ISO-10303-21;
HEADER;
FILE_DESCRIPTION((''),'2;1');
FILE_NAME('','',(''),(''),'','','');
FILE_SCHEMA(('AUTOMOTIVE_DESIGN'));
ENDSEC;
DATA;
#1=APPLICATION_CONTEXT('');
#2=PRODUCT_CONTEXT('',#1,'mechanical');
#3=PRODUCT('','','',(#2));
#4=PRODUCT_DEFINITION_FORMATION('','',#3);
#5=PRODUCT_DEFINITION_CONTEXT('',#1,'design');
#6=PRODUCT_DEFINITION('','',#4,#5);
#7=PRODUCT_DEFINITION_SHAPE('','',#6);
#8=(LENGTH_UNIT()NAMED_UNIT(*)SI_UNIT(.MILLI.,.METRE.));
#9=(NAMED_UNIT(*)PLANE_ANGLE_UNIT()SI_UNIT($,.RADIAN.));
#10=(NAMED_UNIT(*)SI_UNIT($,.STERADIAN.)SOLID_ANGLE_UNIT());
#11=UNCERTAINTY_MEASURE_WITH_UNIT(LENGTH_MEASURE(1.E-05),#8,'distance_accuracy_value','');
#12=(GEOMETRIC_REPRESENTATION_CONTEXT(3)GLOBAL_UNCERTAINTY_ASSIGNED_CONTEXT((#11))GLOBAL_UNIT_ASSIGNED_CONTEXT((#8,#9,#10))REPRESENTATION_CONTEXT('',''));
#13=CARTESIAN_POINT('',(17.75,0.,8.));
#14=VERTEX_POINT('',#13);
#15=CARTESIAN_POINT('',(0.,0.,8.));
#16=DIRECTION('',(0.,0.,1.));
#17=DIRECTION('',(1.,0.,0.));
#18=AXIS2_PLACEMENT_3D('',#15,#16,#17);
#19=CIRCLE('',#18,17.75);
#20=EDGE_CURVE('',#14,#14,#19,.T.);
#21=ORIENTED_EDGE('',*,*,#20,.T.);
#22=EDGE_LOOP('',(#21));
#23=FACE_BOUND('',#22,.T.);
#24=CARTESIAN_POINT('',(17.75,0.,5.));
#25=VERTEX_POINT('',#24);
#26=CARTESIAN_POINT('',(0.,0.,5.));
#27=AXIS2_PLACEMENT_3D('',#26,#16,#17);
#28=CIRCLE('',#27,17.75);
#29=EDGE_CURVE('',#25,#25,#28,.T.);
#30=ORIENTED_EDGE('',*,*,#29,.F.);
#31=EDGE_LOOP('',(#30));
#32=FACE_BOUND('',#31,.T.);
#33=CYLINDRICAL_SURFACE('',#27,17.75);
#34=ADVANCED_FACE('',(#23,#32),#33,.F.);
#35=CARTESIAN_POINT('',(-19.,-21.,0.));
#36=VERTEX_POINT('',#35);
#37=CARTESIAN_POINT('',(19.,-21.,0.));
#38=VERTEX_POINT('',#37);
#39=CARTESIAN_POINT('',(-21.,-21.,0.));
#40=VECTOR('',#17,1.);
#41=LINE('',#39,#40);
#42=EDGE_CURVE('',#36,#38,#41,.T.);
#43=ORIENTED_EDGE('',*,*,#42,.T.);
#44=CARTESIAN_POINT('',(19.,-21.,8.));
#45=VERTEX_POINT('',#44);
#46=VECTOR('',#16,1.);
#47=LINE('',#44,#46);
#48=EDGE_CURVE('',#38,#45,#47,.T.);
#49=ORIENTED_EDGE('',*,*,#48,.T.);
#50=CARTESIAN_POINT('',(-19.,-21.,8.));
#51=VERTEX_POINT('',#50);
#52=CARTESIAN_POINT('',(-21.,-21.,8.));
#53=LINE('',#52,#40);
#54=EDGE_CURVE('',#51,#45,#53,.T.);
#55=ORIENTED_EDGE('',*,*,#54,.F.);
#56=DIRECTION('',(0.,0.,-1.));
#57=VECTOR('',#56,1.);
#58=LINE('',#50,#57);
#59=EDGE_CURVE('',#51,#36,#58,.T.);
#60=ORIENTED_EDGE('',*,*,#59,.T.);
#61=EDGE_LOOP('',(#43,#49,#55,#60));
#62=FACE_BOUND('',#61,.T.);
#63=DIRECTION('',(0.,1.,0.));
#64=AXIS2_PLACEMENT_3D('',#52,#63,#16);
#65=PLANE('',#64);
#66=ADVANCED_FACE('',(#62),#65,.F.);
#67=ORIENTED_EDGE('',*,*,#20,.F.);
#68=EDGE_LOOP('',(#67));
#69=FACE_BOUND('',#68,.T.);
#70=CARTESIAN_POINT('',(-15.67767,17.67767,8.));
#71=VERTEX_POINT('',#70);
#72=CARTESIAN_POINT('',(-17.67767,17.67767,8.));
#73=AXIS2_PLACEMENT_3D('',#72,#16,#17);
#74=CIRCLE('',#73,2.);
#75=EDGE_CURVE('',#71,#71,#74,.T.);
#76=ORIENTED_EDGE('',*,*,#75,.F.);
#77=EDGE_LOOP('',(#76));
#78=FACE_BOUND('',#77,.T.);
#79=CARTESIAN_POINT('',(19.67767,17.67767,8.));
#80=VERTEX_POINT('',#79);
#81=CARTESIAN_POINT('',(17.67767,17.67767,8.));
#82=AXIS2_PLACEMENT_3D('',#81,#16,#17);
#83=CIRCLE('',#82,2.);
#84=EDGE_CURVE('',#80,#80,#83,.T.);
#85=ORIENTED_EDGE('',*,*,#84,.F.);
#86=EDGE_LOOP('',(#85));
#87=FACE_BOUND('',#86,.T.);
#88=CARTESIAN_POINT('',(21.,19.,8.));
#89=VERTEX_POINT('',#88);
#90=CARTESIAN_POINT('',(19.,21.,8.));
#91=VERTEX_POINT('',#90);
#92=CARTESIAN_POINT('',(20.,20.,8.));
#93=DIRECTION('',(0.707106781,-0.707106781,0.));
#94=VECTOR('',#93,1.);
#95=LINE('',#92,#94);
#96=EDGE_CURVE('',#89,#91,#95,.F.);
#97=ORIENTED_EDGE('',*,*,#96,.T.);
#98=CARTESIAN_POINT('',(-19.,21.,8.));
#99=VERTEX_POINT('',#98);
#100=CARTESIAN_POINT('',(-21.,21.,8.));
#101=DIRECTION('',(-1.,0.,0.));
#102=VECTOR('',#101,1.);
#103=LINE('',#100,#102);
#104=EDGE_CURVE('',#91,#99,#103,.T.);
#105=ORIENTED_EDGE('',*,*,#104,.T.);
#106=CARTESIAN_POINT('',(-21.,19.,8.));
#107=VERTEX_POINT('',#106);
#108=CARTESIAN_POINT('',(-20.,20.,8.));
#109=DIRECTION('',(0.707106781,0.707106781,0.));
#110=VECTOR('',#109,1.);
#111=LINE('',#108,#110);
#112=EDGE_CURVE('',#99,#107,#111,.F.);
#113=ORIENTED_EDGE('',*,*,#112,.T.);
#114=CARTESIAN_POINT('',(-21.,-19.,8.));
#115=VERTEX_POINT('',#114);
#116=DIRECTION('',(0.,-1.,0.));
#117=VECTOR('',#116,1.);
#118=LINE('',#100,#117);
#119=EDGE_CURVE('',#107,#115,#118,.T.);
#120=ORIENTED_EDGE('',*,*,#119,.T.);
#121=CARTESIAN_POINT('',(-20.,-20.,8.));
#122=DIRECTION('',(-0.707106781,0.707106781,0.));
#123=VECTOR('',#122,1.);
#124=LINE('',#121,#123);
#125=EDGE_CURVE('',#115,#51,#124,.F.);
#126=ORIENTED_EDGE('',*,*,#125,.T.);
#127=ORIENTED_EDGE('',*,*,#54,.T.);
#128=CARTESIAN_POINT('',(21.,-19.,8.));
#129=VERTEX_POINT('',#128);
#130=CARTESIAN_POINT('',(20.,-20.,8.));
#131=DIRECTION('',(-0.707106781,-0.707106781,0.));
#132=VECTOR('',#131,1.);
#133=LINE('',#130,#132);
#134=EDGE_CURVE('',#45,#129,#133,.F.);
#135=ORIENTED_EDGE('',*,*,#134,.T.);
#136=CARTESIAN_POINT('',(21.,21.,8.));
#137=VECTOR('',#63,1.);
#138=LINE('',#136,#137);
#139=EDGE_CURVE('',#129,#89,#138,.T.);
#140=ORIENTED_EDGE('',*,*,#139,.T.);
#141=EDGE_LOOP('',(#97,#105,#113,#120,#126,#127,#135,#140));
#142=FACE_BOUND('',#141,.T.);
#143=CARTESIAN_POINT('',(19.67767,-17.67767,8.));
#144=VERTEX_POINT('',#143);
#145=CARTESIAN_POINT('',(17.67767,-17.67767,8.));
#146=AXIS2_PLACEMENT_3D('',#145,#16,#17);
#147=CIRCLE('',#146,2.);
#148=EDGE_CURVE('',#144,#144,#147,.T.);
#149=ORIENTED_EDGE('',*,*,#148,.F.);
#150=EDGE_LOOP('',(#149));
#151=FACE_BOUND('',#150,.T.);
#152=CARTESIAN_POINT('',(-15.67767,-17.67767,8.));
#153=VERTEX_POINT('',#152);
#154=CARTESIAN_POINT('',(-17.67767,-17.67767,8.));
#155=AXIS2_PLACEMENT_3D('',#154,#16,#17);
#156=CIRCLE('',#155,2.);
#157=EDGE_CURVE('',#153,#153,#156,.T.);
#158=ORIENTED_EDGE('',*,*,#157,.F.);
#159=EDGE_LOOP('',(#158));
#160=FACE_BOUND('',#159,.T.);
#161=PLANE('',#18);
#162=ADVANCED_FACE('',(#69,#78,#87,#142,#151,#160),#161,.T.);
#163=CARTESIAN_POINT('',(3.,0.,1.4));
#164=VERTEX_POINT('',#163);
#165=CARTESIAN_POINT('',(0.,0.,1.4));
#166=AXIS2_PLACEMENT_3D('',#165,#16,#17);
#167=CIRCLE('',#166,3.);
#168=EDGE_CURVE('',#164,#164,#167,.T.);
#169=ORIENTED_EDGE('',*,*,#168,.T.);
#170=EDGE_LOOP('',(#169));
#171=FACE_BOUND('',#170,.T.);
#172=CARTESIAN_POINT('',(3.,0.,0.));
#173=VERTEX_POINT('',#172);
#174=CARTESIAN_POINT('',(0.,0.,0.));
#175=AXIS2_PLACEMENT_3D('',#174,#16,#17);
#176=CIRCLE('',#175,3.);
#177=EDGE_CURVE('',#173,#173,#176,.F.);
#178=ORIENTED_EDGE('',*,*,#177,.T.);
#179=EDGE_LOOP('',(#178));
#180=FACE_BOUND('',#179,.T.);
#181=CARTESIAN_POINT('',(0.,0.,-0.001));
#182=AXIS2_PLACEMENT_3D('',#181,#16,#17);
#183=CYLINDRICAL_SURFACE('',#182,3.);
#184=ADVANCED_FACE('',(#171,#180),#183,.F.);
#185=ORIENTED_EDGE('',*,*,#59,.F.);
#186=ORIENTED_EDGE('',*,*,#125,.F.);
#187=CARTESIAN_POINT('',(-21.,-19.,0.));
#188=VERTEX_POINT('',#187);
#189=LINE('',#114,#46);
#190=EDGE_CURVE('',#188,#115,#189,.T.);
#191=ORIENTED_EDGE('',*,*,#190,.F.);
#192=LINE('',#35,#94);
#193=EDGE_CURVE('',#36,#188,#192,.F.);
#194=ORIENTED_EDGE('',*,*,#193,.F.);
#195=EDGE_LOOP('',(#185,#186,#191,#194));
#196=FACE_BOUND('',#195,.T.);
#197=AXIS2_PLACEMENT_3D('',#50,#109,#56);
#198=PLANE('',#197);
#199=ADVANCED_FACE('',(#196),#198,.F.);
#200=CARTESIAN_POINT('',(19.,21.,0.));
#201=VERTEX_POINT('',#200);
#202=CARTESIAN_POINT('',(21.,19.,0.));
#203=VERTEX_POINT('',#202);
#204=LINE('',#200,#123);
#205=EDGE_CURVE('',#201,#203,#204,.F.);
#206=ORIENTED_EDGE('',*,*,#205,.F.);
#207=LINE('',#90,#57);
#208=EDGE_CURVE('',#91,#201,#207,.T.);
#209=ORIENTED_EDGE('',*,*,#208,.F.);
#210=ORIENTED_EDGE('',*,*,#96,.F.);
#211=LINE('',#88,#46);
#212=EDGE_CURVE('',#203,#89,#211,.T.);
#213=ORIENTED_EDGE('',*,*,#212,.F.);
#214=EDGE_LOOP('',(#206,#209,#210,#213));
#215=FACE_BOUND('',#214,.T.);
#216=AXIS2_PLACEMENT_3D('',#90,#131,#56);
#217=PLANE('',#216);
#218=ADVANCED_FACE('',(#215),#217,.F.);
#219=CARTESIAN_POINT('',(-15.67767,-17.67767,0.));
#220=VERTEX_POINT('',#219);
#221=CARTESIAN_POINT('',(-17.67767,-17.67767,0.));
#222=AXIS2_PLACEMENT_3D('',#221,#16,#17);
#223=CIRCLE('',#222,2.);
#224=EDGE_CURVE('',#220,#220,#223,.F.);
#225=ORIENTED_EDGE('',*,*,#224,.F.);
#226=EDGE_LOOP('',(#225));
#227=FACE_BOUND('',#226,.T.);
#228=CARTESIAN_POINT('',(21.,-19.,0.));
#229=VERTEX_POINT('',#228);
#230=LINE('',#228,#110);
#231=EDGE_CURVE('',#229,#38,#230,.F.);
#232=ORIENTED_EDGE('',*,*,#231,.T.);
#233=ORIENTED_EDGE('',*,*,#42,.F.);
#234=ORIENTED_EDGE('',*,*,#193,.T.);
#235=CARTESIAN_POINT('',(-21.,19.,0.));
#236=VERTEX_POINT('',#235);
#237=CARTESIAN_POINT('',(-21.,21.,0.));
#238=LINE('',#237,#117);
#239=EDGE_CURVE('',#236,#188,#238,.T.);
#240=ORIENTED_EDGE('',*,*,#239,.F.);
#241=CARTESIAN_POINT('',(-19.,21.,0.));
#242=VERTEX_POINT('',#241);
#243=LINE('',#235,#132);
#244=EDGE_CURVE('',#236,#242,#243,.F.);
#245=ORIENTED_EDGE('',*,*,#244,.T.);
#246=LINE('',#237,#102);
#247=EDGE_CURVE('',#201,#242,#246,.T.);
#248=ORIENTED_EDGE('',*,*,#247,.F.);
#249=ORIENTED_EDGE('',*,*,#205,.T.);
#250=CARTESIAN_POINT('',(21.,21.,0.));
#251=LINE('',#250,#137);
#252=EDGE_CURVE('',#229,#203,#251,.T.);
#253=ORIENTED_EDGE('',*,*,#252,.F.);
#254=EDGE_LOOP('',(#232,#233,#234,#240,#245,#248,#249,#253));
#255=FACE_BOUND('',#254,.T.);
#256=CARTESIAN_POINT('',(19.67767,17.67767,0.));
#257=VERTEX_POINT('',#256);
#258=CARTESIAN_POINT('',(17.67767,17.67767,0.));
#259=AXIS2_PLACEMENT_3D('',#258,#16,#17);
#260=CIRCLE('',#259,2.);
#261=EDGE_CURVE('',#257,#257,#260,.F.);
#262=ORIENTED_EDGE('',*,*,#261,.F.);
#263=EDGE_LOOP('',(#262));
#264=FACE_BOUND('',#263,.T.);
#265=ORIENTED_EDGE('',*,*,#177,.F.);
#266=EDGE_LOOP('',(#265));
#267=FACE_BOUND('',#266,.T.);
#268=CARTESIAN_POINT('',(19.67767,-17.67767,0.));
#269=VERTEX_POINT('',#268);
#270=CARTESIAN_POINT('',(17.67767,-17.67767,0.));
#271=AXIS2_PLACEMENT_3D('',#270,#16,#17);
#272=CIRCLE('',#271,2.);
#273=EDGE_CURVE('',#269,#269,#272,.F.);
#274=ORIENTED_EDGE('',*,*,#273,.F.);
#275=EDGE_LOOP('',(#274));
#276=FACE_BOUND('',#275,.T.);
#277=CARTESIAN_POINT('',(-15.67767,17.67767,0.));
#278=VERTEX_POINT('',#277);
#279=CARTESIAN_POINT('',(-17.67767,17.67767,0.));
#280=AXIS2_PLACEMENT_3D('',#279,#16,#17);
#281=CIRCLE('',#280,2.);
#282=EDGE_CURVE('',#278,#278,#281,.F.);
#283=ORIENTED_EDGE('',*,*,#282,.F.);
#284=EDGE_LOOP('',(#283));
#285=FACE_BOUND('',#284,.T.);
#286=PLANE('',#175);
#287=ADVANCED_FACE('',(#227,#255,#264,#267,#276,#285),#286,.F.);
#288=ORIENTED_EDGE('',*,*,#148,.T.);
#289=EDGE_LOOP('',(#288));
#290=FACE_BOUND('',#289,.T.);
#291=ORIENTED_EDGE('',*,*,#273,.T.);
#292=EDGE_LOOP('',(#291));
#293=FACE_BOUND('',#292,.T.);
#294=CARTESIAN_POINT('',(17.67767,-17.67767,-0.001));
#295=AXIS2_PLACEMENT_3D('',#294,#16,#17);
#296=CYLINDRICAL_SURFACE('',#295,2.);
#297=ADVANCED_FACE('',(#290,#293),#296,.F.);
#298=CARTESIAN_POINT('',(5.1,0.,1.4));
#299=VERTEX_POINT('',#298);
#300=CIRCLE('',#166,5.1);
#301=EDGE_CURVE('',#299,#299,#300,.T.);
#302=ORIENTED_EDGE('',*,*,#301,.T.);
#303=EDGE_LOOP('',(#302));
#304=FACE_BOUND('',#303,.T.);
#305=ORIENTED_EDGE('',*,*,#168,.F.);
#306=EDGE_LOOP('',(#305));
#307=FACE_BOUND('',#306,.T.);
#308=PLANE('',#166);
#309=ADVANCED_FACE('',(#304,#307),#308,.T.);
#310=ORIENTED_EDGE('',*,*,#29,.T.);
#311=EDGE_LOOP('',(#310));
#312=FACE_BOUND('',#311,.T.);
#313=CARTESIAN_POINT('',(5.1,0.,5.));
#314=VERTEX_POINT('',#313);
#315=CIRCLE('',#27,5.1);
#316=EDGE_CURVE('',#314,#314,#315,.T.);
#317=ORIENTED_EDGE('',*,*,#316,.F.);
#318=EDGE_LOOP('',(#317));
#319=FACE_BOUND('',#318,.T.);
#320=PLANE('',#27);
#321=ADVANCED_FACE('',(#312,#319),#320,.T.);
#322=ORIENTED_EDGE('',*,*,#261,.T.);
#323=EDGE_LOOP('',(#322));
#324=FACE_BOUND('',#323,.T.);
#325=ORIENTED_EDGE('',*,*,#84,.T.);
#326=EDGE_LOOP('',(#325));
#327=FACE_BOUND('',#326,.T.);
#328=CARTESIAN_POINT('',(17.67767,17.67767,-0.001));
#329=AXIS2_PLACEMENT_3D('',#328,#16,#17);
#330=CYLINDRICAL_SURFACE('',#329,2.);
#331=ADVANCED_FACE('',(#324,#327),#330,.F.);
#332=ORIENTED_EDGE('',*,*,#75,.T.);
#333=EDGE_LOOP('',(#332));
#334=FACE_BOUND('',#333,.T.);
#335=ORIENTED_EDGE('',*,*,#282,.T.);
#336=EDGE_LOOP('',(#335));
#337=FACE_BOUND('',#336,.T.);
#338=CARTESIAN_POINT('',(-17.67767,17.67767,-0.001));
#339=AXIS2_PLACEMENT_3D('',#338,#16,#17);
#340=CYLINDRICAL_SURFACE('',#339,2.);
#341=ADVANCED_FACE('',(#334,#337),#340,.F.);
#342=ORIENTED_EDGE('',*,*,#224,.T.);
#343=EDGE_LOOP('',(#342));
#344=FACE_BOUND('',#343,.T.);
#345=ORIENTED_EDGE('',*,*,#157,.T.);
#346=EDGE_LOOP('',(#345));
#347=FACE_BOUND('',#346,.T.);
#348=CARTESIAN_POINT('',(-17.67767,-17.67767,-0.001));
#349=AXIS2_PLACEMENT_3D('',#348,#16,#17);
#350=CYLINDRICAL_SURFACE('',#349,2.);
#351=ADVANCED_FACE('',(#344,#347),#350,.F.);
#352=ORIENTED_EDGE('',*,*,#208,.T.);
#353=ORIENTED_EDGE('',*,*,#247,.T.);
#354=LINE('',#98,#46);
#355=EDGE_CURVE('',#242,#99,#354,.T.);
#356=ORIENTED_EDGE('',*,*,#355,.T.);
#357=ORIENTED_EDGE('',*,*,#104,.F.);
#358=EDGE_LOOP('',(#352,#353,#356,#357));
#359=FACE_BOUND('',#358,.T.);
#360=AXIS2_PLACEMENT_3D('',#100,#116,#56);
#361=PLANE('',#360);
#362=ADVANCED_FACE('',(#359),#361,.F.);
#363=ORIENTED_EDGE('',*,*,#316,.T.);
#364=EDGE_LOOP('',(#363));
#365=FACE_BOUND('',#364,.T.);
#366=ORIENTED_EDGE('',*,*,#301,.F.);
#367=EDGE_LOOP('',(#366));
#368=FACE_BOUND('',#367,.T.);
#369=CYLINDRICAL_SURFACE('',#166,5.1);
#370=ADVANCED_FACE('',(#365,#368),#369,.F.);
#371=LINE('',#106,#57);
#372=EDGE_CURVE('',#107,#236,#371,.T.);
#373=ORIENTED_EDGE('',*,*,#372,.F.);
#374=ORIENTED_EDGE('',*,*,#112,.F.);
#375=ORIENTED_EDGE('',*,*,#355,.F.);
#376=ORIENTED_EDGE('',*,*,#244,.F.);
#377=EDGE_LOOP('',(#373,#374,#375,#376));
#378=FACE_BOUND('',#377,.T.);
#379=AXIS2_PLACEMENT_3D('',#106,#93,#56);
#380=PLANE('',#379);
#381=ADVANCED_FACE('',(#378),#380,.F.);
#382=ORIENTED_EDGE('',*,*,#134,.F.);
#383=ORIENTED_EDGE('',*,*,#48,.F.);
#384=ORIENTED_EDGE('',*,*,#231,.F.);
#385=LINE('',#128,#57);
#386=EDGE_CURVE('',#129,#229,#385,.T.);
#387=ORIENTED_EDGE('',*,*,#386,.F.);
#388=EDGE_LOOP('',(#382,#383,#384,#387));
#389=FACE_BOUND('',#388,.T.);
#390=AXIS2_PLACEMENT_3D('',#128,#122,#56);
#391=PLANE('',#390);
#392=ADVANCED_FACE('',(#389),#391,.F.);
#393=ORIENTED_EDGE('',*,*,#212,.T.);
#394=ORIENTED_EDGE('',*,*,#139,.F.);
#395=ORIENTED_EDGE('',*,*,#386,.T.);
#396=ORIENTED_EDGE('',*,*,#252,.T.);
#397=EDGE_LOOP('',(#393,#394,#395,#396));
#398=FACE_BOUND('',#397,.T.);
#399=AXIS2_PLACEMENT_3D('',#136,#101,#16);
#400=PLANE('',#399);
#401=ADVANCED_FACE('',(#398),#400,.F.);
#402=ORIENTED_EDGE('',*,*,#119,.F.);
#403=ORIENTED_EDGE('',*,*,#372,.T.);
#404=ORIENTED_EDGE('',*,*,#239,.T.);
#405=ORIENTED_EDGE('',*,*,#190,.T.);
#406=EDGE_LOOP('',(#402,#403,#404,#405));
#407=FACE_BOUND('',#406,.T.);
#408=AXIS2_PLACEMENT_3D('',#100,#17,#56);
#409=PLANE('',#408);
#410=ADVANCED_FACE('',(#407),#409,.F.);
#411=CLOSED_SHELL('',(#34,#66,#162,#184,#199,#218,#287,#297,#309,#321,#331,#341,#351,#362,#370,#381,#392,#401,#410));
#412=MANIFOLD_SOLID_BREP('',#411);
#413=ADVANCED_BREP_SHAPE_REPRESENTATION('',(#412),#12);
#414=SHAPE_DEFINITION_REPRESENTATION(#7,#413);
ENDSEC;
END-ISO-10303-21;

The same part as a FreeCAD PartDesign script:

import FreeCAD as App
import Part
import Sketcher
Q = App.Units.Quantity


def edges_at(feature, points):
    """Names of the edges that pass closest to the given points."""
    edges = feature.Shape.Edges
    near = lambda p: min(range(len(edges)), key=lambda i: edges[i].distToShape(Part.Vertex(*p))[0])
    return sorted({f"Edge{near(p) + 1}" for p in points})

doc = App.newDocument("Part")
body = doc.addObject("PartDesign::Body", "Body")

# Sketch on XY plane
sketch1 = body.newObject("Sketcher::SketchObject", "Sketch")
sketch1.AttachmentSupport = (doc.getObject("XY_Plane"), [""])
sketch1.MapMode = "FlatFace"
sketch1.addGeometry([
    Part.LineSegment(App.Vector(-21, 21, 0), App.Vector(-21, -21, 0)),
    Part.LineSegment(App.Vector(-21, -21, 0), App.Vector(21, -21, 0)),
    Part.LineSegment(App.Vector(21, -21, 0), App.Vector(21, 21, 0)),
    Part.LineSegment(App.Vector(21, 21, 0), App.Vector(-21, 21, 0)),
], False)
sketch1.addConstraint([
    Sketcher.Constraint("Coincident", 0, 2, 1, 1),
    Sketcher.Constraint("Coincident", 1, 2, 2, 1),
    Sketcher.Constraint("Coincident", 2, 2, 3, 1),
    Sketcher.Constraint("Coincident", 3, 2, 0, 1),
    Sketcher.Constraint("Vertical", 0),
    Sketcher.Constraint("Horizontal", 1),
    Sketcher.Constraint("Vertical", 2),
    Sketcher.Constraint("Horizontal", 3),
    Sketcher.Constraint("Symmetric", 0, 2, 2, 2, -1, 1),
    Sketcher.Constraint("Equal", 3, 0),
    Sketcher.Constraint("DistanceX", 1, 1, 1, 2, Q("42 mm")),
])
pad1 = body.newObject("PartDesign::Pad", "Pad")
pad1.Profile = sketch1
pad1.Length = 8

# Sketch on XY plane
sketch2 = body.newObject("Sketcher::SketchObject", "Sketch001")
sketch2.AttachmentSupport = (doc.getObject("XY_Plane"), [""])
sketch2.MapMode = "FlatFace"
sketch2.AttachmentOffset = App.Placement(App.Vector(0, 0, 8), App.Rotation())
sketch2.addGeometry(Part.Circle(App.Vector(-17.7, 17.7, 0), App.Vector(0, 0, 1), 2), False)
sketch2.addConstraint([
    Sketcher.Constraint("Diameter", 0, Q("4 mm")),
    Sketcher.Constraint("DistanceX", 0, 3, -1, 1, Q("17.67767 mm")),
    Sketcher.Constraint("DistanceY", -1, 1, 0, 3, Q("17.67767 mm")),
])
pocket1 = body.newObject("PartDesign::Pocket", "Pocket")
pocket1.Profile = sketch2
pocket1.Type = "UpToFirst"

# Sketch on XY plane
sketch3 = body.newObject("Sketcher::SketchObject", "Sketch002")
sketch3.AttachmentSupport = (doc.getObject("XY_Plane"), [""])
sketch3.MapMode = "FlatFace"
sketch3.AttachmentOffset = App.Placement(App.Vector(0, 0, 8), App.Rotation())
sketch3.addGeometry(Part.Circle(App.Vector(17.7, 17.7, 0), App.Vector(0, 0, 1), 2), False)
sketch3.addConstraint([
    Sketcher.Constraint("Diameter", 0, Q("4 mm")),
    Sketcher.Constraint("DistanceX", -1, 1, 0, 3, Q("17.67767 mm")),
    Sketcher.Constraint("DistanceY", -1, 1, 0, 3, Q("17.67767 mm")),
])
pocket2 = body.newObject("PartDesign::Pocket", "Pocket001")
pocket2.Profile = sketch3
pocket2.Type = "UpToFirst"

# Sketch on XY plane
sketch4 = body.newObject("Sketcher::SketchObject", "Sketch003")
sketch4.AttachmentSupport = (doc.getObject("XY_Plane"), [""])
sketch4.MapMode = "FlatFace"
sketch4.AttachmentOffset = App.Placement(App.Vector(0, 0, 8), App.Rotation())
sketch4.addGeometry(Part.Circle(App.Vector(17.7, -17.7, 0), App.Vector(0, 0, 1), 2), False)
sketch4.addConstraint([
    Sketcher.Constraint("Diameter", 0, Q("4 mm")),
    Sketcher.Constraint("DistanceX", -1, 1, 0, 3, Q("17.67767 mm")),
    Sketcher.Constraint("DistanceY", 0, 3, -1, 1, Q("17.67767 mm")),
])
pocket3 = body.newObject("PartDesign::Pocket", "Pocket002")
pocket3.Profile = sketch4
pocket3.Type = "UpToFirst"

# Sketch on XY plane
sketch5 = body.newObject("Sketcher::SketchObject", "Sketch004")
sketch5.AttachmentSupport = (doc.getObject("XY_Plane"), [""])
sketch5.MapMode = "FlatFace"
sketch5.AttachmentOffset = App.Placement(App.Vector(0, 0, 8), App.Rotation())
sketch5.addGeometry(Part.Circle(App.Vector(-17.7, -17.7, 0), App.Vector(0, 0, 1), 2), False)
sketch5.addConstraint([
    Sketcher.Constraint("Diameter", 0, Q("4 mm")),
    Sketcher.Constraint("DistanceX", 0, 3, -1, 1, Q("17.67767 mm")),
    Sketcher.Constraint("DistanceY", 0, 3, -1, 1, Q("17.67767 mm")),
])
pocket4 = body.newObject("PartDesign::Pocket", "Pocket003")
pocket4.Profile = sketch5
pocket4.Type = "UpToFirst"

# Sketch on XY plane
sketch6 = body.newObject("Sketcher::SketchObject", "Sketch005")
sketch6.AttachmentSupport = (doc.getObject("XY_Plane"), [""])
sketch6.MapMode = "FlatFace"
sketch6.AttachmentOffset = App.Placement(App.Vector(0, 0, 8), App.Rotation())
sketch6.addGeometry(Part.Circle(App.Vector(0, 0, 0), App.Vector(0, 0, 1), 18), False)
sketch6.addConstraint([
    Sketcher.Constraint("Coincident", 0, 3, -1, 1),
    Sketcher.Constraint("Diameter", 0, Q("35.5 mm")),
])
pocket5 = body.newObject("PartDesign::Pocket", "Pocket004")
pocket5.Profile = sketch6
pocket5.Length = 3

# Sketch on XY plane
sketch7 = body.newObject("Sketcher::SketchObject", "Sketch006")
sketch7.AttachmentSupport = (doc.getObject("XY_Plane"), [""])
sketch7.MapMode = "FlatFace"
sketch7.AttachmentOffset = App.Placement(App.Vector(0, 0, 5), App.Rotation())
sketch7.addGeometry(Part.Circle(App.Vector(0, 0, 0), App.Vector(0, 0, 1), 5), False)
sketch7.addConstraint([
    Sketcher.Constraint("Coincident", 0, 3, -1, 1),
    Sketcher.Constraint("Diameter", 0, Q("10.2 mm")),
])
pocket6 = body.newObject("PartDesign::Pocket", "Pocket005")
pocket6.Profile = sketch7
pocket6.Length = 3.6

# Sketch on XY plane
sketch8 = body.newObject("Sketcher::SketchObject", "Sketch007")
sketch8.AttachmentSupport = (doc.getObject("XY_Plane"), [""])
sketch8.MapMode = "FlatFace"
sketch8.AttachmentOffset = App.Placement(App.Vector(0, 0, 1.4), App.Rotation())
sketch8.addGeometry(Part.Circle(App.Vector(0, 0, 0), App.Vector(0, 0, 1), 3), False)
sketch8.addConstraint([
    Sketcher.Constraint("Coincident", 0, 3, -1, 1),
    Sketcher.Constraint("Diameter", 0, Q("6 mm")),
])
pocket7 = body.newObject("PartDesign::Pocket", "Pocket006")
pocket7.Profile = sketch8
pocket7.Type = "UpToFirst"
doc.recompute()

chamfer = body.newObject("PartDesign::Chamfer", "Chamfer")
chamfer.Base = (pocket7, edges_at(pocket7, [
    (21, -21, 4),
    (-21, -21, 4),
    (-21, 21, 4),
    (21, 21, 4),
]))
chamfer.Size = 2

doc.recompute()
